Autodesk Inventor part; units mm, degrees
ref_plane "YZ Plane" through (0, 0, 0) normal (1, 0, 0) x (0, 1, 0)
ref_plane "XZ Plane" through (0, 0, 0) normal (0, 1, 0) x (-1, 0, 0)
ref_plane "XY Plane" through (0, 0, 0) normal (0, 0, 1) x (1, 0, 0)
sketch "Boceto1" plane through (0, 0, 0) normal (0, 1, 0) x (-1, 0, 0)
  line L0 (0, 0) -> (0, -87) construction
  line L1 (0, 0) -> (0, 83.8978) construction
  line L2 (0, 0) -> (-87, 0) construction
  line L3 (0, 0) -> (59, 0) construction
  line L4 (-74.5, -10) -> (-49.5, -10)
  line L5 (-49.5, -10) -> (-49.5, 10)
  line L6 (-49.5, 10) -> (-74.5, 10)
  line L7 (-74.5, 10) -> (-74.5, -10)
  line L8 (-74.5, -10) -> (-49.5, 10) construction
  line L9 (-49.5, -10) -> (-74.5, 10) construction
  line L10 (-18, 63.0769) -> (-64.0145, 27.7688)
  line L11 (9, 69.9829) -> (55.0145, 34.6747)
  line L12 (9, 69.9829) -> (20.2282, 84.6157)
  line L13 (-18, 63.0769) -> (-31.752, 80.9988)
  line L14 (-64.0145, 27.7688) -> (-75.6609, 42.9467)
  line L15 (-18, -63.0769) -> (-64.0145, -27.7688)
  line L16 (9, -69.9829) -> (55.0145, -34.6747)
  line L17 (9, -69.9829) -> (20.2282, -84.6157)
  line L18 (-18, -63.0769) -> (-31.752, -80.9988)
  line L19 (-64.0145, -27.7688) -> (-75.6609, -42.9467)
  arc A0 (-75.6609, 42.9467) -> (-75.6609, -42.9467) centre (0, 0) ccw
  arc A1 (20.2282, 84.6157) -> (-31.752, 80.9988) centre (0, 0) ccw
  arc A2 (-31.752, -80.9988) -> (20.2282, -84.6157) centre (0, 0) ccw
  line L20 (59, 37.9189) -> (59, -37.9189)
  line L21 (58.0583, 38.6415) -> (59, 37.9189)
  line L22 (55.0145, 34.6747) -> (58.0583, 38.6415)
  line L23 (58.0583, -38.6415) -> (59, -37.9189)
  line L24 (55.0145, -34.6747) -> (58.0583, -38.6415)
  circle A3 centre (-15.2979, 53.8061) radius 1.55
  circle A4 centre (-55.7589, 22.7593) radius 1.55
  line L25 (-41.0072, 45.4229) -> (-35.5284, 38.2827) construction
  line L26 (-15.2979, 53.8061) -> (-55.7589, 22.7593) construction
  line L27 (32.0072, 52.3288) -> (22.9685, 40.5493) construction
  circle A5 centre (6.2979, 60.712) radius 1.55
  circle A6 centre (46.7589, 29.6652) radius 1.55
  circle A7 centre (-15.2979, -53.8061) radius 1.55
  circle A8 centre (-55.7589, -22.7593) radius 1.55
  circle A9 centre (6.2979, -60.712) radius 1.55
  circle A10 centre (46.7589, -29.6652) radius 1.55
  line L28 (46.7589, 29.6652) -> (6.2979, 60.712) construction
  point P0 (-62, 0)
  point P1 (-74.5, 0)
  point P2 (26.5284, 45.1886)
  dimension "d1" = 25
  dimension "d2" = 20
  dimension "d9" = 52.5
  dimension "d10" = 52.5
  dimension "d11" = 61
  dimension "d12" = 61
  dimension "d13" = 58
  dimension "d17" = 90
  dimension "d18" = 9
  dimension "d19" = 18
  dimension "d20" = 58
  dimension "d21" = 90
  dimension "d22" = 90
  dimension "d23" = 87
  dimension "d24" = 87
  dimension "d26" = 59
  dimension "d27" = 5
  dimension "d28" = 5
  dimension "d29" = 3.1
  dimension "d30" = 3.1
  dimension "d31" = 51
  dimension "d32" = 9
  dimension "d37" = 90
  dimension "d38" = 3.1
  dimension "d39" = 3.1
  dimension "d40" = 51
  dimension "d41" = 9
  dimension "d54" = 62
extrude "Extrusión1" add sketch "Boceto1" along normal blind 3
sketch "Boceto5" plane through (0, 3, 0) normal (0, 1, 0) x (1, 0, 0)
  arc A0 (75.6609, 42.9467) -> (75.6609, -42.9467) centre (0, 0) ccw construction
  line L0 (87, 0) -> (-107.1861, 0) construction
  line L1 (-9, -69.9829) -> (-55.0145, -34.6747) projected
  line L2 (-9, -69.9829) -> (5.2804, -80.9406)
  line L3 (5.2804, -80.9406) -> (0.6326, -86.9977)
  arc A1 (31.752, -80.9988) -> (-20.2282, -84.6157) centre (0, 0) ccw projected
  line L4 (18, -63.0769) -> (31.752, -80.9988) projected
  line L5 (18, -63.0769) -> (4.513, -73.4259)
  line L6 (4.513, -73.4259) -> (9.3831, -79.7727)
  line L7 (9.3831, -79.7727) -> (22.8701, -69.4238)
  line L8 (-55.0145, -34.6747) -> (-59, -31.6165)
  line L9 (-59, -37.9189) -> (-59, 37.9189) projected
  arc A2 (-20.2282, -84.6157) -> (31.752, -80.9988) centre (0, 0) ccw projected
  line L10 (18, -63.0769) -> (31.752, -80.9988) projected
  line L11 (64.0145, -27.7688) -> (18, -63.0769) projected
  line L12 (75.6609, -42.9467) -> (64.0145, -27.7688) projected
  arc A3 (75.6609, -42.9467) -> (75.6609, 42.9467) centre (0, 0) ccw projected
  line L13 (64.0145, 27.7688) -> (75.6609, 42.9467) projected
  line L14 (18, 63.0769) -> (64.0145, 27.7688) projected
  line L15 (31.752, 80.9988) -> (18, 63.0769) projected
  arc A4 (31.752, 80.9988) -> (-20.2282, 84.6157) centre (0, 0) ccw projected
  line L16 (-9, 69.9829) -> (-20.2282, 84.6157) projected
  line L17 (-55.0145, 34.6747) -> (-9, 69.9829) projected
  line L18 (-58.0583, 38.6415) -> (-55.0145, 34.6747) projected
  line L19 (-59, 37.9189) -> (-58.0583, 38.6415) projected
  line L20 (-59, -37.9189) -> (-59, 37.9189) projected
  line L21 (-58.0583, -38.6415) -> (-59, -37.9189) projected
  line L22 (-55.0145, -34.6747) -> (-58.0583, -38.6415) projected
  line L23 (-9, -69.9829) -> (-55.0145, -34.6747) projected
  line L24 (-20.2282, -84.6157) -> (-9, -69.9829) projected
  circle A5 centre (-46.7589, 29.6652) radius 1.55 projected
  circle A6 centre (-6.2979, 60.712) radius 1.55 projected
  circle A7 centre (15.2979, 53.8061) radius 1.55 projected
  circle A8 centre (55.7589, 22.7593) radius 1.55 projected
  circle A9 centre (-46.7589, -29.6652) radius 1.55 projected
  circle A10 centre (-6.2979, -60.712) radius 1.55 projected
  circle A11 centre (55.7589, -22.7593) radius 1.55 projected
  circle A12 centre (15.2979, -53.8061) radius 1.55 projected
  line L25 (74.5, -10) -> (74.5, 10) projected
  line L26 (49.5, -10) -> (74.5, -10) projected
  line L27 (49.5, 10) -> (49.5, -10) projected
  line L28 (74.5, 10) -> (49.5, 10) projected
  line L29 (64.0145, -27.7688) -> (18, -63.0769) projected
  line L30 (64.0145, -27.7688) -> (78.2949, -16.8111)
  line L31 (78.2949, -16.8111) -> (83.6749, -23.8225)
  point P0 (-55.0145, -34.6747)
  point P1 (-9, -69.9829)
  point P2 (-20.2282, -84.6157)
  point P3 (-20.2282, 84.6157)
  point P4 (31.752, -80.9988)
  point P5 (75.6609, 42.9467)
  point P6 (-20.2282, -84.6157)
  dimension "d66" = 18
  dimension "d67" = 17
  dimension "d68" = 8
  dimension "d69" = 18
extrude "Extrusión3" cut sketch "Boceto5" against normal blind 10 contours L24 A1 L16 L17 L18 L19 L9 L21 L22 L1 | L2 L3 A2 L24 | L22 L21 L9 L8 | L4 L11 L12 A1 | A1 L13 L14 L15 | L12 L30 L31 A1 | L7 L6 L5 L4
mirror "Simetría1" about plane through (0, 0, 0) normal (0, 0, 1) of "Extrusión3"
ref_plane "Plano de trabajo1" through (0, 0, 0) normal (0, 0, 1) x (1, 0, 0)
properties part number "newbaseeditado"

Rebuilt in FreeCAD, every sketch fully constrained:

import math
import FreeCAD as App
import Part
import Sketcher
Q = App.Units.Quantity

doc = App.newDocument("Part")
body = doc.addObject("PartDesign::Body", "Body")

# Sketch on XZ plane
sketch1 = body.newObject("Sketcher::SketchObject", "Sketch")
sketch1.AttachmentSupport = (doc.getObject("XZ_Plane"), [""])
sketch1.MapMode = "FlatFace"
sketch1.addGeometry(Part.LineSegment(App.Vector(31.8, 81, 0), App.Vector(18, 63.1, 0)), False)
sketch1.addGeometry(Part.LineSegment(App.Vector(18, 63.1, 0), App.Vector(64, 27.8, 0)), False)
sketch1.addGeometry(Part.LineSegment(App.Vector(64, 27.8, 0), App.Vector(75.7, 42.9, 0)), False)
sketch1.addGeometry(Part.ArcOfCircle(Part.Circle(App.Vector(0, 0, 0), App.Vector(0, 0, 1), 87), math.radians(-30), math.radians(30)), False)
sketch1.addGeometry(Part.LineSegment(App.Vector(75.7, -42.9, 0), App.Vector(64, -27.8, 0)), False)
sketch1.addGeometry(Part.LineSegment(App.Vector(64, -27.8, 0), App.Vector(18, -63.1, 0)), False)
sketch1.addGeometry(Part.LineSegment(App.Vector(18, -63.1, 0), App.Vector(31.8, -81, 0)), False)
sketch1.addGeometry(Part.ArcOfCircle(Part.Circle(App.Vector(0, 0, 0), App.Vector(0, 0, 1), 87), math.radians(-103), math.radians(-69)), False)
sketch1.addGeometry(Part.LineSegment(App.Vector(-20.2, -84.6, 0), App.Vector(-9, -70, 0)), False)
sketch1.addGeometry(Part.LineSegment(App.Vector(-9, -70, 0), App.Vector(-55, -34.7, 0)), False)
sketch1.addGeometry(Part.LineSegment(App.Vector(-55, -34.7, 0), App.Vector(-58.1, -38.6, 0)), False)
sketch1.addGeometry(Part.LineSegment(App.Vector(-58.1, -38.6, 0), App.Vector(-59, -37.9, 0)), False)
sketch1.addGeometry(Part.LineSegment(App.Vector(-59, -37.9, 0), App.Vector(-59, 37.9, 0)), False)
sketch1.addGeometry(Part.LineSegment(App.Vector(-59, 37.9, 0), App.Vector(-58.1, 38.6, 0)), False)
sketch1.addGeometry(Part.LineSegment(App.Vector(-58.1, 38.6, 0), App.Vector(-55, 34.7, 0)), False)
sketch1.addGeometry(Part.LineSegment(App.Vector(-55, 34.7, 0), App.Vector(-9, 70, 0)), False)
sketch1.addGeometry(Part.LineSegment(App.Vector(-9, 70, 0), App.Vector(-20.2, 84.6, 0)), False)
sketch1.addGeometry(Part.ArcOfCircle(Part.Circle(App.Vector(0, 0, 0), App.Vector(0, 0, 1), 87), math.radians(69), math.radians(103)), False)
sketch1.addGeometry(Part.Circle(App.Vector(15.3, -53.8, 0), App.Vector(0, 0, 1), 1.6), False)
sketch1.addGeometry(Part.Circle(App.Vector(55.8, -22.8, 0), App.Vector(0, 0, 1), 1.6), False)
sketch1.addGeometry(Part.LineSegment(App.Vector(49.5, -10, 0), App.Vector(74.5, -10, 0)), False)
sketch1.addGeometry(Part.LineSegment(App.Vector(74.5, -10, 0), App.Vector(74.5, 10, 0)), False)
sketch1.addGeometry(Part.LineSegment(App.Vector(74.5, 10, 0), App.Vector(49.5, 10, 0)), False)
sketch1.addGeometry(Part.LineSegment(App.Vector(49.5, 10, 0), App.Vector(49.5, -10, 0)), False)
sketch1.addGeometry(Part.Circle(App.Vector(-6.3, -60.7, 0), App.Vector(0, 0, 1), 1.6), False)
sketch1.addGeometry(Part.Circle(App.Vector(-46.8, -29.7, 0), App.Vector(0, 0, 1), 1.6), False)
sketch1.addGeometry(Part.Circle(App.Vector(55.8, 22.8, 0), App.Vector(0, 0, 1), 1.6), False)
sketch1.addGeometry(Part.Circle(App.Vector(15.3, 53.8, 0), App.Vector(0, 0, 1), 1.6), False)
sketch1.addGeometry(Part.Circle(App.Vector(-46.8, 29.7, 0), App.Vector(0, 0, 1), 1.6), False)
sketch1.addGeometry(Part.Circle(App.Vector(-6.3, 60.7, 0), App.Vector(0, 0, 1), 1.6), False)
sketch1.addConstraint(Sketcher.Constraint("Coincident", 0, 2, 1, 1))
sketch1.addConstraint(Sketcher.Constraint("Coincident", 1, 2, 2, 1))
sketch1.addConstraint(Sketcher.Constraint("Coincident", 2, 2, 3, 2))
sketch1.addConstraint(Sketcher.Constraint("Coincident", 3, 1, 4, 1))
sketch1.addConstraint(Sketcher.Constraint("Coincident", 4, 2, 5, 1))
sketch1.addConstraint(Sketcher.Constraint("Coincident", 5, 2, 6, 1))
sketch1.addConstraint(Sketcher.Constraint("Coincident", 6, 2, 7, 2))
sketch1.addConstraint(Sketcher.Constraint("Coincident", 7, 1, 8, 1))
sketch1.addConstraint(Sketcher.Constraint("Coincident", 8, 2, 9, 1))
sketch1.addConstraint(Sketcher.Constraint("Coincident", 9, 2, 10, 1))
sketch1.addConstraint(Sketcher.Constraint("Coincident", 10, 2, 11, 1))
sketch1.addConstraint(Sketcher.Constraint("Coincident", 11, 2, 12, 1))
sketch1.addConstraint(Sketcher.Constraint("Coincident", 12, 2, 13, 1))
sketch1.addConstraint(Sketcher.Constraint("Coincident", 13, 2, 14, 1))
sketch1.addConstraint(Sketcher.Constraint("Coincident", 14, 2, 15, 1))
sketch1.addConstraint(Sketcher.Constraint("Coincident", 15, 2, 16, 1))
sketch1.addConstraint(Sketcher.Constraint("Coincident", 16, 2, 17, 2))
sketch1.addConstraint(Sketcher.Constraint("Coincident", 17, 1, 0, 1))
sketch1.addConstraint(Sketcher.Constraint("Coincident", 20, 2, 21, 1))
sketch1.addConstraint(Sketcher.Constraint("Coincident", 21, 2, 22, 1))
sketch1.addConstraint(Sketcher.Constraint("Coincident", 22, 2, 23, 1))
sketch1.addConstraint(Sketcher.Constraint("Coincident", 23, 2, 20, 1))
sketch1.addConstraint(Sketcher.Constraint("Vertical", 12))
sketch1.addConstraint(Sketcher.Constraint("Horizontal", 20))
sketch1.addConstraint(Sketcher.Constraint("Vertical", 21))
sketch1.addConstraint(Sketcher.Constraint("Horizontal", 22))
sketch1.addConstraint(Sketcher.Constraint("Vertical", 23))
sketch1.addConstraint(Sketcher.Constraint("Coincident", 3, 3, -1, 1))
sketch1.addConstraint(Sketcher.Constraint("Coincident", 7, 3, -1, 1))
sketch1.addConstraint(Sketcher.Constraint("Coincident", 17, 3, -1, 1))
sketch1.addConstraint(Sketcher.Constraint("Equal", 3, 7))
sketch1.addConstraint(Sketcher.Constraint("Equal", 7, 17))
sketch1.addConstraint(Sketcher.Constraint("Equal", 18, 19))
sketch1.addConstraint(Sketcher.Constraint("Equal", 19, 24))
sketch1.addConstraint(Sketcher.Constraint("Equal", 24, 25))
sketch1.addConstraint(Sketcher.Constraint("Equal", 25, 26))
sketch1.addConstraint(Sketcher.Constraint("Equal", 26, 27))
sketch1.addConstraint(Sketcher.Constraint("Equal", 27, 28))
sketch1.addConstraint(Sketcher.Constraint("Equal", 28, 29))
sketch1.addConstraint(Sketcher.Constraint("Symmetric", 19, 3, 26, 3, -1))
sketch1.addConstraint(Sketcher.Constraint("Symmetric", 18, 3, 27, 3, -1))
sketch1.addConstraint(Sketcher.Constraint("Symmetric", 25, 3, 28, 3, -1))
sketch1.addConstraint(Sketcher.Constraint("Symmetric", 24, 3, 29, 3, -1))
sketch1.addConstraint(Sketcher.Constraint("Symmetric", 1, 2, 4, 2, -1))
sketch1.addConstraint(Sketcher.Constraint("Symmetric", 0, 2, 5, 2, -1))
sketch1.addConstraint(Sketcher.Constraint("Symmetric", 10, 2, 13, 2, -1))
sketch1.addConstraint(Sketcher.Constraint("Symmetric", 9, 2, 14, 2, -1))
sketch1.addConstraint(Sketcher.Constraint("Symmetric", 8, 2, 15, 2, -1))
sketch1.addConstraint(Sketcher.Constraint("Perpendicular", 0, 1))
sketch1.addConstraint(Sketcher.Constraint("Perpendicular", 1, 2))
sketch1.addConstraint(Sketcher.Constraint("Perpendicular", 4, 5))
sketch1.addConstraint(Sketcher.Constraint("Perpendicular", 5, 6))
sketch1.addConstraint(Sketcher.Constraint("Parallel", 2, 8))
sketch1.addConstraint(Sketcher.Constraint("Perpendicular", 8, 9))
sketch1.addConstraint(Sketcher.Constraint("Perpendicular", 9, 10))
sketch1.addConstraint(Sketcher.Constraint("Perpendicular", 10, 11))
sketch1.addConstraint(Sketcher.Constraint("Perpendicular", 6, 13))
sketch1.addConstraint(Sketcher.Constraint("Perpendicular", 15, 16))
sketch1.addConstraint(Sketcher.Constraint("Equal", 5, 9))
sketch1.addConstraint(Sketcher.Constraint("Radius", 3, Q("87 mm")))
sketch1.addConstraint(Sketcher.Constraint("Diameter", 18, Q("3.1 mm")))
sketch1.addConstraint(Sketcher.Constraint("DistanceX", 20, 1, 20, 2, Q("25 mm")))
sketch1.addConstraint(Sketcher.Constraint("DistanceY", 21, 1, 21, 2, Q("20 mm")))
sketch1.addConstraint(Sketcher.Constraint("Distance", 1, Q("58 mm")))
sketch1.addConstraint(Sketcher.Constraint("Distance", 10, Q("5 mm")))
sketch1.addConstraint(Sketcher.Constraint("DistanceX", -1, 1, 0, 2, Q("18 mm")))
sketch1.addConstraint(Sketcher.Constraint("DistanceX", 8, 2, -1, 1, Q("9 mm")))
sketch1.addConstraint(Sketcher.Constraint("DistanceX", 11, 2, -1, 1, Q("59 mm")))
sketch1.addConstraint(Sketcher.Constraint("Angle", 2, Q("52.5 deg")))
sketch1.addConstraint(Sketcher.Constraint("DistanceY", 20, 2, -1, 1, Q("10 mm")))
sketch1.addConstraint(Sketcher.Constraint("DistanceX", -1, 1, 20, 2, Q("74.5 mm")))
sketch1.addConstraint(Sketcher.Constraint("Distance", 0, Q("22.59 mm")))
sketch1.addConstraint(Sketcher.Constraint("DistanceX", 24, 3, 6, 2, Q("38.05 mm")))
sketch1.addConstraint(Sketcher.Constraint("DistanceY", 9, 2, 28, 3, Q("64.34 mm")))
sketch1.addConstraint(Sketcher.Constraint("DistanceX", 13, 2, 16, 2, Q("37.83 mm")))
sketch1.addConstraint(Sketcher.Constraint("DistanceX", -1, 1, 18, 3, Q("15.298 mm")))
sketch1.addConstraint(Sketcher.Constraint("DistanceY", 18, 3, -1, 1, Q("53.806 mm")))
sketch1.addConstraint(Sketcher.Constraint("DistanceX", -1, 1, 19, 3, Q("55.759 mm")))
sketch1.addConstraint(Sketcher.Constraint("DistanceY", 24, 3, -1, 1, Q("60.712 mm")))
sketch1.addConstraint(Sketcher.Constraint("DistanceX", 25, 3, -1, 1, Q("46.759 mm")))
sketch1.addConstraint(Sketcher.Constraint("DistanceY", 19, 3, 1, 2, Q("50.528 mm")))
pad1 = body.newObject("PartDesign::Pad", "Pad")
pad1.Profile = sketch1
pad1.Length = 3
pad1.Reversed = True

# Sketch on XZ plane
sketch2 = body.newObject("Sketcher::SketchObject", "Sketch001")
sketch2.AttachmentSupport = (doc.getObject("XZ_Plane"), [""])
sketch2.MapMode = "FlatFace"
sketch2.AttachmentOffset = App.Placement(App.Vector(0, 0, -3), App.Rotation())
sketch2.addGeometry(Part.ArcOfCircle(Part.Circle(App.Vector(0, 0, 0), App.Vector(0, 0, 1), 87), math.radians(103), math.radians(257)), False)
sketch2.addGeometry(Part.ArcOfCircle(Part.Circle(App.Vector(0, 0, 0), App.Vector(0, 0, 1), 87), math.radians(89.58), math.radians(103.44)), False)
sketch2.addGeometry(Part.LineSegment(App.Vector(0.6, 87, 0), App.Vector(5.3, 80.9, 0)), False)
sketch2.addGeometry(Part.LineSegment(App.Vector(5.3, 80.9, 0), App.Vector(-9, 70, 0)), False)
sketch2.addGeometry(Part.LineSegment(App.Vector(-9, 70, 0), App.Vector(-55, 34.7, 0)), False)
sketch2.addGeometry(Part.LineSegment(App.Vector(-55, 34.7, 0), App.Vector(-59, 31.6, 0)), False)
sketch2.addGeometry(Part.LineSegment(App.Vector(-59, 31.6, 0), App.Vector(-59, -37.9, 0)), False)
sketch2.addGeometry(Part.LineSegment(App.Vector(-59, -37.9, 0), App.Vector(-58.1, -38.6, 0)), False)
sketch2.addGeometry(Part.LineSegment(App.Vector(-58.1, -38.6, 0), App.Vector(-55, -34.7, 0)), False)
sketch2.addGeometry(Part.LineSegment(App.Vector(-55, -34.7, 0), App.Vector(-9, -70, 0)), False)
sketch2.addGeometry(Part.LineSegment(App.Vector(-9, -70, 0), App.Vector(-20.2, -84.6, 0)), False)
sketch2.addGeometry(Part.LineSegment(App.Vector(22.9, 69.4, 0), App.Vector(31.8, 81, 0)), False)
sketch2.addGeometry(Part.ArcOfCircle(Part.Circle(App.Vector(0, 0, 0), App.Vector(0, 0, 1), 87), math.radians(16), math.radians(69)), False)
sketch2.addGeometry(Part.LineSegment(App.Vector(83.7, 23.8, 0), App.Vector(78.3, 16.8, 0)), False)
sketch2.addGeometry(Part.LineSegment(App.Vector(78.3, 16.8, 0), App.Vector(64, 27.8, 0)), False)
sketch2.addGeometry(Part.LineSegment(App.Vector(64, 27.8, 0), App.Vector(18, 63.1, 0)), False)
sketch2.addGeometry(Part.LineSegment(App.Vector(18, 63.1, 0), App.Vector(4.5, 73.4, 0)), False)
sketch2.addGeometry(Part.LineSegment(App.Vector(4.5, 73.4, 0), App.Vector(9.4, 79.8, 0)), False)
sketch2.addGeometry(Part.LineSegment(App.Vector(9.4, 79.8, 0), App.Vector(22.9, 69.4, 0)), False)
sketch2.addGeometry(Part.ArcOfCircle(Part.Circle(App.Vector(0, 0, 0), App.Vector(0, 0, 1), 87), math.radians(-69), math.radians(-30)), False)
sketch2.addGeometry(Part.LineSegment(App.Vector(31.8, -81, 0), App.Vector(18, -63.1, 0)), False)
sketch2.addGeometry(Part.LineSegment(App.Vector(18, -63.1, 0), App.Vector(64, -27.8, 0)), False)
sketch2.addGeometry(Part.LineSegment(App.Vector(64, -27.8, 0), App.Vector(75.7, -42.9, 0)), False)
sketch2.addConstraint(Sketcher.Constraint("Tangent", 0, 1, 1, 2))
sketch2.addConstraint(Sketcher.Constraint("Coincident", 1, 1, 2, 1))
sketch2.addConstraint(Sketcher.Constraint("Coincident", 2, 2, 3, 1))
sketch2.addConstraint(Sketcher.Constraint("Coincident", 3, 2, 4, 1))
sketch2.addConstraint(Sketcher.Constraint("Coincident", 4, 2, 5, 1))
sketch2.addConstraint(Sketcher.Constraint("Coincident", 5, 2, 6, 1))
sketch2.addConstraint(Sketcher.Constraint("Coincident", 6, 2, 7, 1))
sketch2.addConstraint(Sketcher.Constraint("Coincident", 7, 2, 8, 1))
sketch2.addConstraint(Sketcher.Constraint("Coincident", 8, 2, 9, 1))
sketch2.addConstraint(Sketcher.Constraint("Coincident", 9, 2, 10, 1))
sketch2.addConstraint(Sketcher.Constraint("Coincident", 10, 2, 0, 2))
sketch2.addConstraint(Sketcher.Constraint("Coincident", 11, 2, 12, 2))
sketch2.addConstraint(Sketcher.Constraint("Coincident", 12, 1, 13, 1))
sketch2.addConstraint(Sketcher.Constraint("Coincident", 13, 2, 14, 1))
sketch2.addConstraint(Sketcher.Constraint("Coincident", 14, 2, 15, 1))
sketch2.addConstraint(Sketcher.Constraint("Coincident", 15, 2, 16, 1))
sketch2.addConstraint(Sketcher.Constraint("Coincident", 16, 2, 17, 1))
sketch2.addConstraint(Sketcher.Constraint("Coincident", 17, 2, 18, 1))
sketch2.addConstraint(Sketcher.Constraint("Coincident", 18, 2, 11, 1))
sketch2.addConstraint(Sketcher.Constraint("Coincident", 19, 1, 20, 1))
sketch2.addConstraint(Sketcher.Constraint("Coincident", 20, 2, 21, 1))
sketch2.addConstraint(Sketcher.Constraint("Coincident", 21, 2, 22, 1))
sketch2.addConstraint(Sketcher.Constraint("Coincident", 22, 2, 19, 2))
sketch2.addConstraint(Sketcher.Constraint("Vertical", 6))
sketch2.addConstraint(Sketcher.Constraint("Coincident", 0, 3, -1, 1))
sketch2.addConstraint(Sketcher.Constraint("Coincident", 12, 3, -1, 1))
sketch2.addConstraint(Sketcher.Constraint("Coincident", 19, 3, -1, 1))
sketch2.addConstraint(Sketcher.Constraint("Equal", 0, 1))
sketch2.addConstraint(Sketcher.Constraint("Equal", 1, 12))
sketch2.addConstraint(Sketcher.Constraint("Equal", 12, 19))
sketch2.addConstraint(Sketcher.Constraint("Symmetric", 4, 2, 8, 2, -1))
sketch2.addConstraint(Sketcher.Constraint("Symmetric", 3, 2, 9, 2, -1))
sketch2.addConstraint(Sketcher.Constraint("Symmetric", 15, 2, 20, 2, -1))
sketch2.addConstraint(Sketcher.Constraint("Symmetric", 14, 2, 21, 2, -1))
sketch2.addConstraint(Sketcher.Constraint("Perpendicular", 2, 3))
sketch2.addConstraint(Sketcher.Constraint("Parallel", 3, 4))
sketch2.addConstraint(Sketcher.Constraint("Parallel", 4, 5))
sketch2.addConstraint(Sketcher.Constraint("Perpendicular", 7, 8))
sketch2.addConstraint(Sketcher.Constraint("Perpendicular", 8, 9))
sketch2.addConstraint(Sketcher.Constraint("Perpendicular", 9, 10))
sketch2.addConstraint(Sketcher.Constraint("Parallel", 10, 11))
sketch2.addConstraint(Sketcher.Constraint("Parallel", 11, 13))
sketch2.addConstraint(Sketcher.Constraint("Perpendicular", 13, 14))
sketch2.addConstraint(Sketcher.Constraint("Parallel", 14, 15))
sketch2.addConstraint(Sketcher.Constraint("Parallel", 15, 16))
sketch2.addConstraint(Sketcher.Constraint("Perpendicular", 16, 17))
sketch2.addConstraint(Sketcher.Constraint("Perpendicular", 17, 18))
sketch2.addConstraint(Sketcher.Constraint("Perpendicular", 5, 20))
sketch2.addConstraint(Sketcher.Constraint("Perpendicular", 21, 22))
sketch2.addConstraint(Sketcher.Constraint("Vertical", 0, 1, 10, 2))
sketch2.addConstraint(Sketcher.Constraint("Vertical", 11, 2, 19, 1))
sketch2.addConstraint(Sketcher.Constraint("Equal", 3, 14))
sketch2.addConstraint(Sketcher.Constraint("Equal", 9, 15))
sketch2.addConstraint(Sketcher.Constraint("Distance", 3, Q("18 mm")))
sketch2.addConstraint(Sketcher.Constraint("Distance", 16, Q("17 mm")))
sketch2.addConstraint(Sketcher.Constraint("Distance", 17, Q("8 mm")))
sketch2.addConstraint(Sketcher.Constraint("DistanceX", -1, 1, 15, 2, Q("18 mm")))
sketch2.addConstraint(Sketcher.Constraint("Radius", 0, Q("87 mm")))
sketch2.addConstraint(Sketcher.Constraint("Distance", 4, Q("58 mm")))
sketch2.addConstraint(Sketcher.Constraint("Distance", 8, Q("5 mm")))
sketch2.addConstraint(Sketcher.Constraint("DistanceX", 3, 2, -1, 1, Q("9 mm")))
sketch2.addConstraint(Sketcher.Constraint("DistanceX", 5, 2, -1, 1, Q("59 mm")))
sketch2.addConstraint(Sketcher.Constraint("Angle", 2, Q("-52.4999 deg")))
sketch2.addConstraint(Sketcher.Constraint("Distance", 11, Q("14.59 mm")))
sketch2.addConstraint(Sketcher.Constraint("DistanceX", 7, 2, 10, 2, Q("37.83 mm")))
pocket1 = body.newObject("PartDesign::Pocket", "Pocket")
pocket1.Profile = sketch2
pocket1.Length = 10
pocket1.Reversed = True
doc.recompute()

mirrored = body.newObject("PartDesign::Mirrored", "Mirrored")
mirrored.Originals = [pocket1]
mirrored.MirrorPlane = (doc.getObject("XY_Plane"), [""])
body.Tip = mirrored

doc.recompute()
